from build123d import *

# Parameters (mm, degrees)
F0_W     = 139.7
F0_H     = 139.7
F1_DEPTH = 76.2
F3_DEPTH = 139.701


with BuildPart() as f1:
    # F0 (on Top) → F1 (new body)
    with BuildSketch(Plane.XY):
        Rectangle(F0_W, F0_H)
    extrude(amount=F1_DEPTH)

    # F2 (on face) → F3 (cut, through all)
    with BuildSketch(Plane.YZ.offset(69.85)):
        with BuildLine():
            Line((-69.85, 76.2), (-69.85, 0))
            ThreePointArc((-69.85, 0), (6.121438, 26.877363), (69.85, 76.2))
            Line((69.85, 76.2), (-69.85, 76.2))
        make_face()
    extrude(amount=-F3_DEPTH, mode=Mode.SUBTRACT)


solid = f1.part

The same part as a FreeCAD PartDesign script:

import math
import FreeCAD as App
import Part
import Sketcher
Q = App.Units.Quantity


def add_polygon(sketch, points):
    """Adds a closed chain of lines whose ends are joined by coincident constraints."""
    first, n = sketch.GeometryCount, len(points)
    for a, b in zip(points, points[1:] + points[:1]):
        sketch.addGeometry(Part.LineSegment(App.Vector(*a, 0), App.Vector(*b, 0)), False)
    for i in range(n):
        sketch.addConstraint(Sketcher.Constraint("Coincident", first + i, 2, first + (i + 1) % n, 1))

doc = App.newDocument("Part")
params = doc.addObject("Spreadsheet::Sheet", "Params")
for row, (alias, value) in enumerate([
    ("sketch1_width", "5.5 in"),
    ("pad1_length", "3 in"),
    ("sketch2_radius", "10.0000001 in"),
    ("sketch2_height", "3 in"),
    ("sketch2_width", "5.5 in"),
], start=1):
    params.set(f"A{row}", alias)
    params.set(f"B{row}", "=" + value)
    params.setAlias(f"B{row}", alias)

body = doc.addObject("PartDesign::Body", "Body")

# Sketch on XY plane
sketch1 = body.newObject("Sketcher::SketchObject", "Sketch")
sketch1.AttachmentSupport = (doc.getObject("XY_Plane"), [""])
sketch1.MapMode = "FlatFace"
add_polygon(sketch1, [(-70, 70), (-70, -70), (70, -70), (70, 70)])  # lines 0-3
sketch1.addConstraint([
    Sketcher.Constraint("Vertical", 0),
    Sketcher.Constraint("Horizontal", 1),
    Sketcher.Constraint("Vertical", 2),
    Sketcher.Constraint("Horizontal", 3),
    Sketcher.Constraint("Symmetric", 0, 2, 2, 2, -1, 1),
    Sketcher.Constraint("Equal", 3, 0),
    Sketcher.Constraint("DistanceX", 1, 1, 1, 2, Q("5.5 in")),
])
sketch1.setExpression("Constraints[10]", "Params.sketch1_width")
pad1 = body.newObject("PartDesign::Pad", "Pad")
pad1.Profile = sketch1
pad1.setExpression("Length", "Params.pad1_length")

# Sketch on YZ plane
sketch2 = body.newObject("Sketcher::SketchObject", "Sketch001")
sketch2.AttachmentSupport = (doc.getObject("YZ_Plane"), [""])
sketch2.MapMode = "FlatFace"
sketch2.AttachmentOffset = App.Placement(App.Vector(0, 0, 2.75 * 25.4), App.Rotation())
sketch2.addGeometry([
    Part.LineSegment(App.Vector(-70, 76, 0), App.Vector(-70, 0, 0)),
    Part.ArcOfCircle(Part.Circle(App.Vector(-116, 250, 0), App.Vector(0, 0, 1), 254), math.radians(-80), math.radians(-43)),
    Part.LineSegment(App.Vector(70, 76, 0), App.Vector(-70, 76, 0)),
], False)
sketch2.addConstraint([
    Sketcher.Constraint("Coincident", 0, 2, 1, 1),
    Sketcher.Constraint("Coincident", 1, 2, 2, 1),
    Sketcher.Constraint("Coincident", 2, 2, 0, 1),
    Sketcher.Constraint("Vertical", 0),
    Sketcher.Constraint("Horizontal", 2),
    Sketcher.Constraint("PointOnObject", 0, 2, -1),
    Sketcher.Constraint("Radius", 1, Q("10.0000001 in")),
    Sketcher.Constraint("DistanceY", 0, 2, 0, 1, Q("3 in")),
    Sketcher.Constraint("DistanceX", 2, 2, 2, 1, Q("5.5 in")),
    Sketcher.Constraint("DistanceX", 0, 2, -1, 1, Q("2.75 in")),
])
sketch2.setExpression("Constraints[6]", "Params.sketch2_radius")
sketch2.setExpression("Constraints[7]", "Params.sketch2_height")
sketch2.setExpression("Constraints[8]", "Params.sketch2_width")
pocket1 = body.newObject("PartDesign::Pocket", "Pocket")
pocket1.Profile = sketch2
pocket1.Type = "ThroughAll"

doc.recompute()
